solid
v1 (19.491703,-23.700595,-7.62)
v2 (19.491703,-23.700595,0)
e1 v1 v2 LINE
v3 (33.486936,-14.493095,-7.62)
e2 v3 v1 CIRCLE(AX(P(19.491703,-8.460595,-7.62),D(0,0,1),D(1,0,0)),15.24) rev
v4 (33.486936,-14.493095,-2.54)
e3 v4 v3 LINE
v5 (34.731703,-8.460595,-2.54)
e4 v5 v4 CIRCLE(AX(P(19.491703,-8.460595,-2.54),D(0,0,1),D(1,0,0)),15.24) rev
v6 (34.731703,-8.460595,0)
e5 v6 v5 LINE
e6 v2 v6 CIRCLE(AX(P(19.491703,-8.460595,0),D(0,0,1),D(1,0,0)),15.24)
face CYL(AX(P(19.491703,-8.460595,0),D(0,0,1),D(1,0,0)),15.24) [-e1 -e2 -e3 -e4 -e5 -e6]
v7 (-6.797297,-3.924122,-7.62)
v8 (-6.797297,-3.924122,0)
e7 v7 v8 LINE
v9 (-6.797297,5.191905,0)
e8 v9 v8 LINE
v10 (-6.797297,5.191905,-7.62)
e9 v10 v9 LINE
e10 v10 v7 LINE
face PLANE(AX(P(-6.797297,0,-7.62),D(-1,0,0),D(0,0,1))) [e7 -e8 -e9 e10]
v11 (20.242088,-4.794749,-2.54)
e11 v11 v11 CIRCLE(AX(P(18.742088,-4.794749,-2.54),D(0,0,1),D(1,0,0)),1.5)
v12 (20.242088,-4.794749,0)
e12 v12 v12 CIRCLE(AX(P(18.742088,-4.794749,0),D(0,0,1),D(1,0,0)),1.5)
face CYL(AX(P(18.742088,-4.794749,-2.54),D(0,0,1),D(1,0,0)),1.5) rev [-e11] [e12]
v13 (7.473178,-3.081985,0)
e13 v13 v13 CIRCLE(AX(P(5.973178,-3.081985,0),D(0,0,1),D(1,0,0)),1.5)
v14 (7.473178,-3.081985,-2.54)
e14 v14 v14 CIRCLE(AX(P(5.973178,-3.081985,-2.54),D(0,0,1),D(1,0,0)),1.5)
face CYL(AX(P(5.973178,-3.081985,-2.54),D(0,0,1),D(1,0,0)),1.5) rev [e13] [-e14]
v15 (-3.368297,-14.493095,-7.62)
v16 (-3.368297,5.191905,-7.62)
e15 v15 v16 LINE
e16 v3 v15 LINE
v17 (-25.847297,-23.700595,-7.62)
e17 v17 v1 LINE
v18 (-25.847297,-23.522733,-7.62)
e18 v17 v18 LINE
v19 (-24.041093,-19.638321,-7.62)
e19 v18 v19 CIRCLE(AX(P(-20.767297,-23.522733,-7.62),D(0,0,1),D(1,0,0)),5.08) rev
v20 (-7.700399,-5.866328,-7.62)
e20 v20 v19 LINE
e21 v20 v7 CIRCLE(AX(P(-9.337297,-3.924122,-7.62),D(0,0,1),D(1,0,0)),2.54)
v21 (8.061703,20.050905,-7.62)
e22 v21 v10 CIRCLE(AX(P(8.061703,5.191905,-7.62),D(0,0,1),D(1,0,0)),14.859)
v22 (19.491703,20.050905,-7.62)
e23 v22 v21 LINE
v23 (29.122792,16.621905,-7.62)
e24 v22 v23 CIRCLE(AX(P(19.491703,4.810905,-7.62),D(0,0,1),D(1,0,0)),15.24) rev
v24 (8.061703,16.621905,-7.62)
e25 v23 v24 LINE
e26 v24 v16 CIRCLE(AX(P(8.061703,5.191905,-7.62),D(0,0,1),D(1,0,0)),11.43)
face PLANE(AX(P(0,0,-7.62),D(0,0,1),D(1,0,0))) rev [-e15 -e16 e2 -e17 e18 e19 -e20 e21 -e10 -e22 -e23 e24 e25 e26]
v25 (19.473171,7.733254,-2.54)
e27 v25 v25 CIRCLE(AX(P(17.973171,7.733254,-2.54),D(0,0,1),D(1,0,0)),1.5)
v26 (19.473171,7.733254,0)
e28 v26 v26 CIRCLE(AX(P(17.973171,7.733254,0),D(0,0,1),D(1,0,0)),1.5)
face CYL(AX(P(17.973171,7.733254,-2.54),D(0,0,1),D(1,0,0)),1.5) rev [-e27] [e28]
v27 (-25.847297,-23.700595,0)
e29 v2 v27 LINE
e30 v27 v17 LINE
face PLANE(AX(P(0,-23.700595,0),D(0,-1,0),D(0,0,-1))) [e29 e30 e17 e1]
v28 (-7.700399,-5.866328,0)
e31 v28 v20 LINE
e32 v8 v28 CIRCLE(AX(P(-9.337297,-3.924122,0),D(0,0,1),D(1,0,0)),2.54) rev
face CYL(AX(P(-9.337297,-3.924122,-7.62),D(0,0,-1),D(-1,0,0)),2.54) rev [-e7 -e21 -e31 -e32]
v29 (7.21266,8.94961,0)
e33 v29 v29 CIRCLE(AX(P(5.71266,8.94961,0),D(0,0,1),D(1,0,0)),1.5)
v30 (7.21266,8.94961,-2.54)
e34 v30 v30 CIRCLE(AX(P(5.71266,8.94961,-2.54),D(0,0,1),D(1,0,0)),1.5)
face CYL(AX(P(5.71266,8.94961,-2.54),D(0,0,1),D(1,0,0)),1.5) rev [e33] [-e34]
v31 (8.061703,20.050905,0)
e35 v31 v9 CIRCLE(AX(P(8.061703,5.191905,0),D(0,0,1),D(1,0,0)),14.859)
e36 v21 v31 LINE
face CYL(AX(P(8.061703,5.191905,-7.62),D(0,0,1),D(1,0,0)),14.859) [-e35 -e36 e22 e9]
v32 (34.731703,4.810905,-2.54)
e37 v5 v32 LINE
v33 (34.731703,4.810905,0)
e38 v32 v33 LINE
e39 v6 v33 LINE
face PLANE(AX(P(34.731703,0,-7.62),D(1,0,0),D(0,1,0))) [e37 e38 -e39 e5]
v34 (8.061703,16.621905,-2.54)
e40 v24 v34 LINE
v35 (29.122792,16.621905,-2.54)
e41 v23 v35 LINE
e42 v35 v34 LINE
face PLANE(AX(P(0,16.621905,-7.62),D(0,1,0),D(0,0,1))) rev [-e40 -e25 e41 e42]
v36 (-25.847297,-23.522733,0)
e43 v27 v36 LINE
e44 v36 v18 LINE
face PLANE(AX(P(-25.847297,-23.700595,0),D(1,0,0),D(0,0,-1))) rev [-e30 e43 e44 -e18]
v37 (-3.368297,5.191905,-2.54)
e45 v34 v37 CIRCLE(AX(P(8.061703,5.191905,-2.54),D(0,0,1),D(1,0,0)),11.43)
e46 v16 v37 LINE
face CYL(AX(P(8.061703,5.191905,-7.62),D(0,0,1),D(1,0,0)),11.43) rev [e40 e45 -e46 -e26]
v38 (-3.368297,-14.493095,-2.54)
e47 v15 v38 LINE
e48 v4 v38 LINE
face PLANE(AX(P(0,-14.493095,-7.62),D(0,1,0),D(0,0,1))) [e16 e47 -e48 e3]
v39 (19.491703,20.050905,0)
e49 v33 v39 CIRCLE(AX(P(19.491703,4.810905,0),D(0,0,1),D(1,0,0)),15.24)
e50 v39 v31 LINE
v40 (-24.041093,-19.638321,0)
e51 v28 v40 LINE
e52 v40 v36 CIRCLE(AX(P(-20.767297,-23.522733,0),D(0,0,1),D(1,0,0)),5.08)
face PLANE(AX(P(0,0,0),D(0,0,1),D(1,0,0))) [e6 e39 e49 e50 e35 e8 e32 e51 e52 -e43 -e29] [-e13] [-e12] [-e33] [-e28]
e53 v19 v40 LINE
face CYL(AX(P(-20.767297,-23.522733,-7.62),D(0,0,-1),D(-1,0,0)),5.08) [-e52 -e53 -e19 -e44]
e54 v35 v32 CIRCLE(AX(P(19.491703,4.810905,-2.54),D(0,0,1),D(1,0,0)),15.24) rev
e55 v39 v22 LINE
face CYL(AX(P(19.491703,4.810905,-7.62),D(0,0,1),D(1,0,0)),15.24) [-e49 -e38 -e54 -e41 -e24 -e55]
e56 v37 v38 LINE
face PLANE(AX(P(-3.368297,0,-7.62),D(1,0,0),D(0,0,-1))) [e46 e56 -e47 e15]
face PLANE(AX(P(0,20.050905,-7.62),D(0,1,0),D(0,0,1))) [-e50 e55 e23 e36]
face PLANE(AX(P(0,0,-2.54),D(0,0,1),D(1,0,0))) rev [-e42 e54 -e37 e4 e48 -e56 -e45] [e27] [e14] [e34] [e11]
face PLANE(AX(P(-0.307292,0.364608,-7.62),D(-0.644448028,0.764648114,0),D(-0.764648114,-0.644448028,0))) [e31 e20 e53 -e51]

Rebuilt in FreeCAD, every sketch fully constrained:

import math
import FreeCAD as App
import Part
import Sketcher

V = App.Vector
Q = App.Units.Quantity


def edges_at(feature, points):
    """Names of the edges that pass closest to the given points."""
    edges = feature.Shape.Edges
    near = lambda p: min(range(len(edges)), key=lambda i: edges[i].distToShape(Part.Vertex(*p))[0])
    return sorted({f"Edge{near(p) + 1}" for p in points})


def add_polygon(sketch, points):
    """Adds a closed chain of lines whose ends are joined by coincident constraints."""
    first, n = sketch.GeometryCount, len(points)
    for a, b in zip(points, points[1:] + points[:1]):
        sketch.addGeometry(Part.LineSegment(App.Vector(*a, 0), App.Vector(*b, 0)), False)
    for i in range(n):
        sketch.addConstraint(Sketcher.Constraint("Coincident", first + i, 2, first + (i + 1) % n, 1))

doc = App.newDocument("Part")
body = doc.addObject("PartDesign::Body", "Body")

# Sketch on XY plane
sketch1 = body.newObject("Sketcher::SketchObject", "Sketch")
sketch1.AttachmentSupport = (doc.getObject("XY_Plane"), [""])
sketch1.MapMode = "FlatFace"
sketch1.addGeometry(Part.LineSegment(V(34.7, -14.5, 0), V(-3.4, -14.5, 0)), False)
sketch1.addGeometry(Part.LineSegment(V(-3.4, -14.5, 0), V(-3.4, 5.2, 0)), False)
sketch1.addGeometry(Part.ArcOfCircle(Part.Circle(V(8.1, 5.2, 0), V(0, 0, 1), 11.4), math.radians(90), math.radians(180)), False)
sketch1.addGeometry(Part.LineSegment(V(8.1, 16.6, 0), V(34.7, 16.6, 0)), False)
sketch1.addGeometry(Part.LineSegment(V(34.7, 16.6, 0), V(34.7, 20.1, 0)), False)
sketch1.addGeometry(Part.LineSegment(V(34.7, 20.1, 0), V(8.1, 20.1, 0)), False)
sketch1.addGeometry(Part.ArcOfCircle(Part.Circle(V(8.1, 5.2, 0), V(0, 0, 1), 14.9), math.radians(90), math.radians(180)), False)
sketch1.addGeometry(Part.LineSegment(V(-6.8, 5.2, 0), V(-6.8, -5.1, 0)), False)
sketch1.addGeometry(Part.LineSegment(V(-6.8, -5.1, 0), V(-25.8, -21.2, 0)), False)
sketch1.addGeometry(Part.LineSegment(V(-25.8, -21.2, 0), V(34.7, -21.2, 0)), False)
sketch1.addGeometry(Part.LineSegment(V(34.7, -21.2, 0), V(34.7, -14.5, 0)), False)
sketch1.addConstraint(Sketcher.Constraint("Coincident", 0, 2, 1, 1))
sketch1.addConstraint(Sketcher.Constraint("Tangent", 1, 2, 2, 2))
sketch1.addConstraint(Sketcher.Constraint("Tangent", 2, 1, 3, 1))
sketch1.addConstraint(Sketcher.Constraint("Coincident", 3, 2, 4, 1))
sketch1.addConstraint(Sketcher.Constraint("Coincident", 4, 2, 5, 1))
sketch1.addConstraint(Sketcher.Constraint("Tangent", 5, 2, 6, 1))
sketch1.addConstraint(Sketcher.Constraint("Tangent", 6, 2, 7, 1))
sketch1.addConstraint(Sketcher.Constraint("Coincident", 7, 2, 8, 1))
sketch1.addConstraint(Sketcher.Constraint("Coincident", 8, 2, 9, 1))
sketch1.addConstraint(Sketcher.Constraint("Coincident", 9, 2, 10, 1))
sketch1.addConstraint(Sketcher.Constraint("Coincident", 10, 2, 0, 1))
sketch1.addConstraint(Sketcher.Constraint("Horizontal", 0))
sketch1.addConstraint(Sketcher.Constraint("Vertical", 1))
sketch1.addConstraint(Sketcher.Constraint("Horizontal", 3))
sketch1.addConstraint(Sketcher.Constraint("Vertical", 4))
sketch1.addConstraint(Sketcher.Constraint("Horizontal", 5))
sketch1.addConstraint(Sketcher.Constraint("Vertical", 7))
sketch1.addConstraint(Sketcher.Constraint("Horizontal", 9))
sketch1.addConstraint(Sketcher.Constraint("Vertical", 10))
sketch1.addConstraint(Sketcher.Constraint("Coincident", 6, 3, 2, 3))
sketch1.addConstraint(Sketcher.Constraint("Vertical", 4, 2, 9, 2))
sketch1.addConstraint(Sketcher.Constraint("Radius", 2, Q("0.45 in")))
sketch1.addConstraint(Sketcher.Constraint("DistanceX", 0, 2, 0, 1, Q("1.5 in")))
sketch1.addConstraint(Sketcher.Constraint("Radius", 6, Q("0.585 in")))
sketch1.addConstraint(Sketcher.Constraint("DistanceX", 9, 1, 9, 2, Q("2.385 in")))
sketch1.addConstraint(Sketcher.Constraint("DistanceY", 1, 1, 1, 2, Q("0.775 in")))
sketch1.addConstraint(Sketcher.Constraint("DistanceY", 10, 1, 10, 2, Q("0.2625 in")))
sketch1.addConstraint(Sketcher.Constraint("Distance", 8, 24.91342))
sketch1.addConstraint(Sketcher.Constraint("DistanceY", 7, 2, -1, 1, 5.105191))
sketch1.addConstraint(Sketcher.Constraint("DistanceX", -1, 1, 2, 3, 8.061703))
pad1 = body.newObject("PartDesign::Pad", "Pad")
pad1.Profile = sketch1
pad1.Length = Q("0.3 in")
pad1.Reversed = True

# Sketch on XY plane
sketch2 = body.newObject("Sketcher::SketchObject", "Sketch001")
sketch2.AttachmentSupport = (doc.getObject("XY_Plane"), [""])
sketch2.MapMode = "FlatFace"
sketch2.addGeometry(Part.LineSegment(V(-3.4, -14.5, 0), V(34.7, -14.5, 0)), False)
sketch2.addGeometry(Part.LineSegment(V(34.7, -14.5, 0), V(34.7, 16.6, 0)), False)
sketch2.addGeometry(Part.LineSegment(V(34.7, 16.6, 0), V(8.1, 16.6, 0)), False)
sketch2.addGeometry(Part.ArcOfCircle(Part.Circle(V(8.1, 5.2, 0), V(0, 0, 1), 11.4), math.radians(90), math.radians(180)), False)
sketch2.addGeometry(Part.LineSegment(V(-3.4, 5.2, 0), V(-3.4, -14.5, 0)), False)
sketch2.addGeometry(Part.Circle(V(6, -3.1, 0), V(0, 0, 1), 1.5), False)
sketch2.addGeometry(Part.Circle(V(18.7, -4.8, 0), V(0, 0, 1), 1.5), False)
sketch2.addGeometry(Part.Circle(V(5.7, 8.9, 0), V(0, 0, 1), 1.5), False)
sketch2.addGeometry(Part.Circle(V(18, 7.7, 0), V(0, 0, 1), 1.5), False)
sketch2.addConstraint(Sketcher.Constraint("Coincident", 0, 2, 1, 1))
sketch2.addConstraint(Sketcher.Constraint("Coincident", 1, 2, 2, 1))
sketch2.addConstraint(Sketcher.Constraint("Tangent", 2, 2, 3, 1))
sketch2.addConstraint(Sketcher.Constraint("Tangent", 3, 2, 4, 1))
sketch2.addConstraint(Sketcher.Constraint("Coincident", 4, 2, 0, 1))
sketch2.addConstraint(Sketcher.Constraint("Horizontal", 0))
sketch2.addConstraint(Sketcher.Constraint("Vertical", 1))
sketch2.addConstraint(Sketcher.Constraint("Horizontal", 2))
sketch2.addConstraint(Sketcher.Constraint("Vertical", 4))
sketch2.addConstraint(Sketcher.Constraint("Equal", 5, 6))
sketch2.addConstraint(Sketcher.Constraint("Equal", 6, 7))
sketch2.addConstraint(Sketcher.Constraint("Equal", 7, 8))
sketch2.addConstraint(Sketcher.Constraint("Radius", 3, Q("0.45 in")))
sketch2.addConstraint(Sketcher.Constraint("DistanceX", 0, 1, 0, 2, Q("1.5 in")))
sketch2.addConstraint(Sketcher.Constraint("Diameter", 5, 3.0))
sketch2.addConstraint(Sketcher.Constraint("DistanceY", 1, 1, 1, 2, Q("1.225 in")))
sketch2.addConstraint(Sketcher.Constraint("DistanceY", 6, 3, -1, 1, 4.794749))
sketch2.addConstraint(Sketcher.Constraint("DistanceX", -1, 1, 7, 3, 5.71266))
sketch2.addConstraint(Sketcher.Constraint("DistanceY", -1, 1, 7, 3, 8.94961))
sketch2.addConstraint(Sketcher.Constraint("DistanceX", -1, 1, 8, 3, 17.973171))
sketch2.addConstraint(Sketcher.Constraint("DistanceY", 5, 3, 3, 3, 8.27389))
sketch2.addConstraint(Sketcher.Constraint("DistanceX", 5, 3, 6, 3, 12.76891))
sketch2.addConstraint(Sketcher.Constraint("DistanceX", 7, 3, 6, 3, 13.029428))
sketch2.addConstraint(Sketcher.Constraint("DistanceX", 3, 3, 8, 3, 9.911468))
sketch2.addConstraint(Sketcher.Constraint("DistanceY", 3, 3, 8, 3, 2.541349))
sketch2.addConstraint(Sketcher.Constraint("DistanceY", -1, 1, 3, 3, 5.191905))
pad2 = body.newObject("PartDesign::Pad", "Pad001")
pad2.Profile = sketch2
pad2.Length = Q("0.1 in")
pad2.Reversed = True

# Sketch on XZ plane
sketch3 = body.newObject("Sketcher::SketchObject", "Sketch002")
sketch3.AttachmentSupport = (doc.getObject("XZ_Plane"), [""])
sketch3.MapMode = "FlatFace"
sketch3.AttachmentOffset = App.Placement(V(0, 0, 21.160595), App.Rotation())
add_polygon(sketch3, [(-26, 0), (-26, -8), (35, -8), (35, 0)])  # lines 0-3
sketch3.addConstraint(Sketcher.Constraint("Vertical", 0))
sketch3.addConstraint(Sketcher.Constraint("Horizontal", 1))
sketch3.addConstraint(Sketcher.Constraint("Vertical", 2))
sketch3.addConstraint(Sketcher.Constraint("Horizontal", 3))
sketch3.addConstraint(Sketcher.Constraint("PointOnObject", 2, 2, -1))
sketch3.addConstraint(Sketcher.Constraint("DistanceY", 0, 2, 0, 1, Q("0.3 in")))
sketch3.addConstraint(Sketcher.Constraint("DistanceX", 1, 1, 1, 2, Q("2.385 in")))
sketch3.addConstraint(Sketcher.Constraint("DistanceX", 0, 2, -1, 1, 25.847297))
pad3 = body.newObject("PartDesign::Pad", "Pad002")
pad3.Profile = sketch3
pad3.Length = Q("0.1 in")
doc.recompute()

fillet = body.newObject("PartDesign::Fillet", "Fillet")
fillet.Base = (pad3, edges_at(pad3, [(34.732, 20.051, -3.81), (34.732, -23.701, -3.81)]))
fillet.Radius = Q("0.6 in")
doc.recompute()

fillet2 = body.newObject("PartDesign::Fillet", "Fillet001")
fillet2.Base = (fillet, edges_at(fillet, [(-25.847, -21.161, -3.81)]))
fillet2.Radius = Q("0.2 in")
doc.recompute()

fillet3 = body.newObject("PartDesign::Fillet", "Fillet002")
fillet3.Base = (fillet2, edges_at(fillet2, [(-6.797, -5.105, -3.81)]))
fillet3.Radius = Q("0.1 in")

doc.recompute()
